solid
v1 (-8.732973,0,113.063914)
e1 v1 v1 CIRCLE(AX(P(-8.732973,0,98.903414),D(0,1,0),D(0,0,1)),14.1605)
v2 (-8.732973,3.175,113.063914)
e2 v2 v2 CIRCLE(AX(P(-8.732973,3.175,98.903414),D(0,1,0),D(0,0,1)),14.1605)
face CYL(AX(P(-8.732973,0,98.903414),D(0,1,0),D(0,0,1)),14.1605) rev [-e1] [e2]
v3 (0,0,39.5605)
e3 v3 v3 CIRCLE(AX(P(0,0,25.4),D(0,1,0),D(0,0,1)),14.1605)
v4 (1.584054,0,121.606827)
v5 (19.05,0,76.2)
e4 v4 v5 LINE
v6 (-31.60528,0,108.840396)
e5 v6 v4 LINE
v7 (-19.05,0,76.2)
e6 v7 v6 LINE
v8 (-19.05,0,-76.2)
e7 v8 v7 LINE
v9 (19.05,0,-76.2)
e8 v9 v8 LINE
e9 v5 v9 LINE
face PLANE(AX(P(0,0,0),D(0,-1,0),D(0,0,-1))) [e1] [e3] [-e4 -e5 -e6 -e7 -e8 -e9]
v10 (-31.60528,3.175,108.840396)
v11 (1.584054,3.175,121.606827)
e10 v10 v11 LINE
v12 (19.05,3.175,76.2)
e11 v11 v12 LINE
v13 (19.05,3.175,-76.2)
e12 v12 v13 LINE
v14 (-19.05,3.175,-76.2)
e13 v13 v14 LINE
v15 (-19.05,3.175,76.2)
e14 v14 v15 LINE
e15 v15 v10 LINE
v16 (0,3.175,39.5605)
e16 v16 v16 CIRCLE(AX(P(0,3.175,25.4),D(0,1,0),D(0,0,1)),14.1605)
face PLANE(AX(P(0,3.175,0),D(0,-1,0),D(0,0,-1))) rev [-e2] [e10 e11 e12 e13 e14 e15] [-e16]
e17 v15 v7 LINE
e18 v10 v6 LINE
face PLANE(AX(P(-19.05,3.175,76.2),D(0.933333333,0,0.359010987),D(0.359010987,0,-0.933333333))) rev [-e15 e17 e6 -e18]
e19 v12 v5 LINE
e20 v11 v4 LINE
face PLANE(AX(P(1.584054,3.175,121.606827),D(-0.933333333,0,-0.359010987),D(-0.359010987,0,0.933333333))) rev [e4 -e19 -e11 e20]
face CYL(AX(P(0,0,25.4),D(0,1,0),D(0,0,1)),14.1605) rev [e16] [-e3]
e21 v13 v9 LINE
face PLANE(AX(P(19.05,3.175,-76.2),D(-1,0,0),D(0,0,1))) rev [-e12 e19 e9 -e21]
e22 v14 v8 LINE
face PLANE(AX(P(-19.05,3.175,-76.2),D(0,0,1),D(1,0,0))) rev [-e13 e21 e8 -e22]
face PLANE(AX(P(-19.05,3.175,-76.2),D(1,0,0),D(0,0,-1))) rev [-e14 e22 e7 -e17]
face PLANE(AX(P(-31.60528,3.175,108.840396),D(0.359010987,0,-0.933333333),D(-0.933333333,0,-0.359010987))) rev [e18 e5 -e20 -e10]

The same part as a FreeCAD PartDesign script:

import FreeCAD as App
import Part
import Sketcher
from FreeCAD import Vector
Q = App.Units.Quantity


def add_polygon(sketch, points):
    """Adds a closed chain of lines whose ends are joined by coincident constraints."""
    first, n = sketch.GeometryCount, len(points)
    for a, b in zip(points, points[1:] + points[:1]):
        sketch.addGeometry(Part.LineSegment(App.Vector(*a, 0), App.Vector(*b, 0)), False)
    for i in range(n):
        sketch.addConstraint(Sketcher.Constraint("Coincident", first + i, 2, first + (i + 1) % n, 1))

doc = App.newDocument("Part")
body = doc.addObject("PartDesign::Body", "Body")

sketch1 = body.newObject("Sketcher::SketchObject", "Sketch")
sketch1.AttachmentSupport = (doc.getObject("XZ_Plane"), [""])
sketch1.MapMode = "FlatFace"
add_polygon(sketch1, [(-19.05, 76.2), (-31.60528, 108.840396), (1.584054, 121.606827), (19.05, 76.2), (19.05, -76.2), (-19.05, -76.2)])
sketch1.addConstraint(Sketcher.Constraint("Vertical", 3))
sketch1.addConstraint(Sketcher.Constraint("Horizontal", 4))
sketch1.addConstraint(Sketcher.Constraint("Vertical", 5))
sketch1.addConstraint(Sketcher.Constraint("Symmetric", 2, 2, 4, 2, -1, 1))
sketch1.addConstraint(Sketcher.Constraint("Perpendicular", 0, 1))
sketch1.addConstraint(Sketcher.Constraint("Perpendicular", 1, 2))
sketch1.addConstraint(Sketcher.Constraint("Horizontal", 2, 2, 5, 2))
sketch1.addConstraint(Sketcher.Constraint("DistanceY", 3, 2, 3, 1, Q("6 in")))
sketch1.addConstraint(Sketcher.Constraint("DistanceX", 4, 2, 4, 1, Q("1.5 in")))
sketch1.addConstraint(Sketcher.Constraint("Distance", 1, Q("1.4 in")))
sketch1.addConstraint(Sketcher.Constraint("Distance", 2, 48.650172))
pad1 = body.newObject("PartDesign::Pad", "Pad")
pad1.Profile = sketch1
pad1.Length = Q("0.125 in")
pad1.Reversed = True

sketch2 = body.newObject("Sketcher::SketchObject", "Sketch001")
sketch2.AttachmentSupport = (doc.getObject("XZ_Plane"), [""])
sketch2.MapMode = "FlatFace"
sketch2.AttachmentOffset = App.Placement(Vector(0, 0, -0.125 * 25.4), App.Rotation())
sketch2.addGeometry(Part.Circle(Vector(-8.732973, 98.903414, 0), Vector(0, 0, 1), 14.1605), False)
sketch2.addConstraint(Sketcher.Constraint("Diameter", 0, Q("1.115 in")))
sketch2.addConstraint(Sketcher.Constraint("DistanceX", 0, 3, -1, 1, 8.732973))
sketch2.addConstraint(Sketcher.Constraint("DistanceY", -1, 1, 0, 3, 98.903414))
pocket1 = body.newObject("PartDesign::Pocket", "Pocket")
pocket1.Profile = sketch2
pocket1.Type = "ThroughAll"
pocket1.Reversed = True

sketch3 = body.newObject("Sketcher::SketchObject", "Sketch002")
sketch3.AttachmentSupport = (doc.getObject("XZ_Plane"), [""])
sketch3.MapMode = "FlatFace"
sketch3.AttachmentOffset = App.Placement(Vector(0, 0, -0.125 * 25.4), App.Rotation())
sketch3.addGeometry(Part.Circle(Vector(0, 25.4, 0), Vector(0, 0, 1), 14.1605), False)
sketch3.addConstraint(Sketcher.Constraint("PointOnObject", 0, 3, -2))
sketch3.addConstraint(Sketcher.Constraint("Diameter", 0, Q("1.115 in")))
sketch3.addConstraint(Sketcher.Constraint("DistanceY", -1, 1, 0, 3, Q("1 in")))
pocket2 = body.newObject("PartDesign::Pocket", "Pocket001")
pocket2.Profile = sketch3
pocket2.Type = "ThroughAll"
pocket2.Reversed = True

doc.recompute()
